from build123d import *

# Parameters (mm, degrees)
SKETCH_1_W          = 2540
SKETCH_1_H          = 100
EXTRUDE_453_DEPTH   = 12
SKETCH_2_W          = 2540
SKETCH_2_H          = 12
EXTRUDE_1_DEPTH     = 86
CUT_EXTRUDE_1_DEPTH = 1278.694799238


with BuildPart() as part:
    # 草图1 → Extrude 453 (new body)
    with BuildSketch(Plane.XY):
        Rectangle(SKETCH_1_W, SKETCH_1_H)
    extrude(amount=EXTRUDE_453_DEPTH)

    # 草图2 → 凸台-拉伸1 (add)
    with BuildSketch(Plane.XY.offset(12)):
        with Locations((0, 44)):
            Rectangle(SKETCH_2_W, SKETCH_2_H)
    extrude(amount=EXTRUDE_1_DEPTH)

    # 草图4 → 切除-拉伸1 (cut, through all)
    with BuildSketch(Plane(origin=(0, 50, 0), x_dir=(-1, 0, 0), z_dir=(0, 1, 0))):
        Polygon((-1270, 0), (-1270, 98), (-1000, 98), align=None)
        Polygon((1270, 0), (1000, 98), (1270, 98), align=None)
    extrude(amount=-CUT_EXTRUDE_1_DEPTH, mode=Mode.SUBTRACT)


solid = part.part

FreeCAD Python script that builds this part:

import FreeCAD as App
import Part
import Sketcher

V = App.Vector

doc = App.newDocument("Part")
body = doc.addObject("PartDesign::Body", "Body")

# Sketch on XY plane
sketch1 = body.newObject("Sketcher::SketchObject", "Sketch")
sketch1.AttachmentSupport = (doc.getObject("XY_Plane"), [""])
sketch1.MapMode = "FlatFace"
sketch1.addGeometry([
    Part.LineSegment(V(-1270, 50, 0), V(-1270, -50, 0)),
    Part.LineSegment(V(-1270, -50, 0), V(1270, -50, 0)),
    Part.LineSegment(V(1270, -50, 0), V(1270, 50, 0)),
    Part.LineSegment(V(1270, 50, 0), V(-1270, 50, 0)),
], False)
sketch1.addConstraint([
    Sketcher.Constraint("Coincident", 0, 2, 1, 1),
    Sketcher.Constraint("Coincident", 1, 2, 2, 1),
    Sketcher.Constraint("Coincident", 2, 2, 3, 1),
    Sketcher.Constraint("Coincident", 3, 2, 0, 1),
    Sketcher.Constraint("Vertical", 0),
    Sketcher.Constraint("Horizontal", 1),
    Sketcher.Constraint("Vertical", 2),
    Sketcher.Constraint("Horizontal", 3),
    Sketcher.Constraint("Symmetric", 0, 2, 2, 2, -1, 1),
    Sketcher.Constraint("DistanceX", 1, 1, 1, 2, 2540.0),
    Sketcher.Constraint("DistanceY", 0, 2, 0, 1, 100.0),
])
pad1 = body.newObject("PartDesign::Pad", "Pad")
pad1.Profile = sketch1
pad1.Length = 12

# Sketch on XY plane
sketch2 = body.newObject("Sketcher::SketchObject", "Sketch001")
sketch2.AttachmentSupport = (doc.getObject("XY_Plane"), [""])
sketch2.MapMode = "FlatFace"
sketch2.AttachmentOffset = App.Placement(V(0, 0, 12), App.Rotation())
sketch2.addGeometry([
    Part.LineSegment(V(-1270, 50, 0), V(-1270, 38, 0)),
    Part.LineSegment(V(-1270, 38, 0), V(1270, 38, 0)),
    Part.LineSegment(V(1270, 38, 0), V(1270, 50, 0)),
    Part.LineSegment(V(1270, 50, 0), V(-1270, 50, 0)),
], False)
sketch2.addConstraint([
    Sketcher.Constraint("Coincident", 0, 2, 1, 1),
    Sketcher.Constraint("Coincident", 1, 2, 2, 1),
    Sketcher.Constraint("Coincident", 2, 2, 3, 1),
    Sketcher.Constraint("Coincident", 3, 2, 0, 1),
    Sketcher.Constraint("Vertical", 0),
    Sketcher.Constraint("Horizontal", 1),
    Sketcher.Constraint("Vertical", 2),
    Sketcher.Constraint("Horizontal", 3),
    Sketcher.Constraint("DistanceX", 1, 1, 1, 2, 2540.0),
    Sketcher.Constraint("DistanceY", 0, 2, 0, 1, 12.0),
    Sketcher.Constraint("DistanceX", 0, 2, -1, 1, 1270.0),
    Sketcher.Constraint("DistanceY", -1, 1, 0, 2, 38.0),
])
pad2 = body.newObject("PartDesign::Pad", "Pad001")
pad2.Profile = sketch2
pad2.Length = 86

# Sketch on XZ plane
sketch3 = body.newObject("Sketcher::SketchObject", "Sketch002")
sketch3.AttachmentSupport = (doc.getObject("XZ_Plane"), [""])
sketch3.MapMode = "FlatFace"
sketch3.AttachmentOffset = App.Placement(V(0, 0, -50), App.Rotation())
sketch3.addGeometry([
    Part.LineSegment(V(1270, 98, 0), V(1270, 0, 0)),  # 0
    Part.LineSegment(V(1270, 0, 0), V(1000, 98, 0)),  # 1
    Part.LineSegment(V(1000, 98, 0), V(1270, 98, 0)),  # 2
    Part.LineSegment(V(-1000, 98, 0), V(-1270, 0, 0)),  # 3
    Part.LineSegment(V(-1270, 0, 0), V(-1270, 98, 0)),  # 4
    Part.LineSegment(V(-1270, 98, 0), V(-1000, 98, 0)),  # 5
], False)
sketch3.addConstraint([
    Sketcher.Constraint("Coincident", 0, 2, 1, 1),
    Sketcher.Constraint("Coincident", 1, 2, 2, 1),
    Sketcher.Constraint("Coincident", 2, 2, 0, 1),
    Sketcher.Constraint("Coincident", 3, 2, 4, 1),
    Sketcher.Constraint("Coincident", 4, 2, 5, 1),
    Sketcher.Constraint("Coincident", 5, 2, 3, 1),
    Sketcher.Constraint("Vertical", 0),
    Sketcher.Constraint("Horizontal", 2),
    Sketcher.Constraint("Vertical", 4),
    Sketcher.Constraint("Horizontal", 5),
    Sketcher.Constraint("Symmetric", 0, 2, 3, 2, -1, 1),
    Sketcher.Constraint("Symmetric", 1, 2, 5, 2, -2),
    Sketcher.Constraint("PointOnObject", 0, 2, -1),
    Sketcher.Constraint("DistanceX", 2, 1, 2, 2, 270.0),
    Sketcher.Constraint("DistanceY", 0, 2, 0, 1, 98.0),
    Sketcher.Constraint("DistanceX", -1, 1, 0, 2, 1270.0),
])
pocket1 = body.newObject("PartDesign::Pocket", "Pocket")
pocket1.Profile = sketch3
pocket1.Type = "ThroughAll"
pocket1.Reversed = True

doc.recompute()
